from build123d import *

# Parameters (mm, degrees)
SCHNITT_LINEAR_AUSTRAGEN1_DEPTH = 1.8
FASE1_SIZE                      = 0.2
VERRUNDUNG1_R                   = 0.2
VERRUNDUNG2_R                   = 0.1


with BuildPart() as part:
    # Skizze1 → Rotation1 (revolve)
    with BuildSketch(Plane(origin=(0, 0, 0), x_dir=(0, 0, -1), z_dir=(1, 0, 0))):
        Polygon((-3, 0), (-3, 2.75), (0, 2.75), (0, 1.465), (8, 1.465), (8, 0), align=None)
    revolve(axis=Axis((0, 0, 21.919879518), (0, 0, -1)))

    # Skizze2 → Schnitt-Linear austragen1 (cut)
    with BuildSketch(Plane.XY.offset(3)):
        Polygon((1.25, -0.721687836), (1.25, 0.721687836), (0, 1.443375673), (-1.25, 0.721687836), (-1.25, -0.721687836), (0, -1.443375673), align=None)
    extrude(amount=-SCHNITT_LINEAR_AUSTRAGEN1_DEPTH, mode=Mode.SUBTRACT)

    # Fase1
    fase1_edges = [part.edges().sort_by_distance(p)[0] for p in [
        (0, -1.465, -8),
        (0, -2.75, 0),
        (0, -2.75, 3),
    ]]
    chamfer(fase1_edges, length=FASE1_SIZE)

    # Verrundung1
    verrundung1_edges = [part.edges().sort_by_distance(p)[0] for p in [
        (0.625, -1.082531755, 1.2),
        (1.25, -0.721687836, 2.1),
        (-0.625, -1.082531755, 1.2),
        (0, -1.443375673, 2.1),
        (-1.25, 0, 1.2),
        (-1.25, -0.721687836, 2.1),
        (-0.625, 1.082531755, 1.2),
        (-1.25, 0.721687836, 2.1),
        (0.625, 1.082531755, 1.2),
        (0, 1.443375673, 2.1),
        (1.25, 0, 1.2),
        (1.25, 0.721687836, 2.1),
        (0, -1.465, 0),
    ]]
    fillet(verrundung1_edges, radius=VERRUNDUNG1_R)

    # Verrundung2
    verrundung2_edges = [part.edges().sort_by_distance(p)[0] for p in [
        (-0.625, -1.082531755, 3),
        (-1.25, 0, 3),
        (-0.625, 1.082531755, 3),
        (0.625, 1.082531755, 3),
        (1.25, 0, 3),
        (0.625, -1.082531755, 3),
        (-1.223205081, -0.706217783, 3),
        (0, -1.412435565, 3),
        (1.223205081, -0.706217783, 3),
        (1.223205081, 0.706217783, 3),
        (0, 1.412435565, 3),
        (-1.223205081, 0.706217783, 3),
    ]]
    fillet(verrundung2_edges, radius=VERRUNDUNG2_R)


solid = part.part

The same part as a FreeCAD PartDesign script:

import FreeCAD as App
import Part
import Sketcher

V = App.Vector
Q = App.Units.Quantity


def edges_at(feature, points):
    """Names of the edges that pass closest to the given points."""
    edges = feature.Shape.Edges
    near = lambda p: min(range(len(edges)), key=lambda i: edges[i].distToShape(Part.Vertex(*p))[0])
    return sorted({f"Edge{near(p) + 1}" for p in points})

doc = App.newDocument("Part")
body = doc.addObject("PartDesign::Body", "Body")

sketch1 = body.newObject("Sketcher::SketchObject", "Sketch")
sketch1.AttachmentSupport = (doc.getObject("YZ_Plane"), [""])
sketch1.MapMode = "FlatFace"
sketch1.addGeometry(Part.LineSegment(V(2.8, 3, 0), V(0, 3, 0)), False)
sketch1.addGeometry(Part.LineSegment(V(0, 3, 0), V(0, -8, 0)), False)
sketch1.addGeometry(Part.LineSegment(V(0, -8, 0), V(1.5, -8, 0)), False)
sketch1.addGeometry(Part.LineSegment(V(1.5, -8, 0), V(1.5, 0, 0)), False)
sketch1.addGeometry(Part.LineSegment(V(1.5, 0, 0), V(2.8, 0, 0)), False)
sketch1.addGeometry(Part.LineSegment(V(2.8, 0, 0), V(2.8, 3, 0)), False)
sketch1.addConstraint(Sketcher.Constraint("Coincident", 0, 2, 1, 1))
sketch1.addConstraint(Sketcher.Constraint("Coincident", 1, 2, 2, 1))
sketch1.addConstraint(Sketcher.Constraint("Coincident", 2, 2, 3, 1))
sketch1.addConstraint(Sketcher.Constraint("Coincident", 3, 2, 4, 1))
sketch1.addConstraint(Sketcher.Constraint("Coincident", 4, 2, 5, 1))
sketch1.addConstraint(Sketcher.Constraint("Coincident", 5, 2, 0, 1))
sketch1.addConstraint(Sketcher.Constraint("Horizontal", 0))
sketch1.addConstraint(Sketcher.Constraint("Vertical", 1))
sketch1.addConstraint(Sketcher.Constraint("Horizontal", 2))
sketch1.addConstraint(Sketcher.Constraint("Vertical", 3))
sketch1.addConstraint(Sketcher.Constraint("Horizontal", 4))
sketch1.addConstraint(Sketcher.Constraint("Vertical", 5))
sketch1.addConstraint(Sketcher.Constraint("PointOnObject", 0, 2, -2))
sketch1.addConstraint(Sketcher.Constraint("PointOnObject", 3, 2, -1))
sketch1.addConstraint(Sketcher.Constraint("DistanceY", 1, 2, 1, 1, 11.0))
sketch1.addConstraint(Sketcher.Constraint("DistanceY", 3, 1, 3, 2, 8.0))
sketch1.addConstraint(Sketcher.Constraint("DistanceX", 0, 2, 0, 1, 2.75))
sketch1.addConstraint(Sketcher.Constraint("DistanceX", 2, 1, 2, 2, 1.465))
revolution = body.newObject("PartDesign::Revolution", "Revolution")
revolution.Profile = sketch1
revolution.ReferenceAxis = (sketch1, ["V_Axis"])
revolution.Angle = 360

sketch2 = body.newObject("Sketcher::SketchObject", "Sketch001")
sketch2.AttachmentSupport = (doc.getObject("XY_Plane"), [""])
sketch2.MapMode = "FlatFace"
sketch2.AttachmentOffset = App.Placement(V(0, 0, 3), App.Rotation())
sketch2.addGeometry(Part.LineSegment(V(1.2, -0.7, 0), V(1.2, 0.7, 0)), False)
sketch2.addGeometry(Part.LineSegment(V(1.2, 0.7, 0), V(0, 1.4, 0)), False)
sketch2.addGeometry(Part.LineSegment(V(0, 1.4, 0), V(-1.2, 0.7, 0)), False)
sketch2.addGeometry(Part.LineSegment(V(-1.2, 0.7, 0), V(-1.2, -0.7, 0)), False)
sketch2.addGeometry(Part.LineSegment(V(-1.2, -0.7, 0), V(0, -1.4, 0)), False)
sketch2.addGeometry(Part.LineSegment(V(0, -1.4, 0), V(1.2, -0.7, 0)), False)
sketch2.addConstraint(Sketcher.Constraint("Coincident", 0, 2, 1, 1))
sketch2.addConstraint(Sketcher.Constraint("Coincident", 1, 2, 2, 1))
sketch2.addConstraint(Sketcher.Constraint("Coincident", 2, 2, 3, 1))
sketch2.addConstraint(Sketcher.Constraint("Coincident", 3, 2, 4, 1))
sketch2.addConstraint(Sketcher.Constraint("Coincident", 4, 2, 5, 1))
sketch2.addConstraint(Sketcher.Constraint("Coincident", 5, 2, 0, 1))
sketch2.addConstraint(Sketcher.Constraint("Vertical", 0))
sketch2.addConstraint(Sketcher.Constraint("Vertical", 3))
sketch2.addConstraint(Sketcher.Constraint("Symmetric", 0, 2, 3, 2, -1, 1))
sketch2.addConstraint(Sketcher.Constraint("Symmetric", 1, 2, 4, 2, -1, 1))
sketch2.addConstraint(Sketcher.Constraint("PointOnObject", 1, 2, -2))
sketch2.addConstraint(Sketcher.Constraint("Parallel", 2, 5))
sketch2.addConstraint(Sketcher.Constraint("Horizontal", 0, 2, 2, 2))
sketch2.addConstraint(Sketcher.Constraint("Angle", 1, Q("150 deg")))
sketch2.addConstraint(Sketcher.Constraint("DistanceX", 2, 2, 0, 2, 2.5))
sketch2.addConstraint(Sketcher.Constraint("DistanceY", 0, 1, 0, 2, 1.443376))
pocket1 = body.newObject("PartDesign::Pocket", "Pocket")
pocket1.Profile = sketch2
pocket1.Length = 1.8
doc.recompute()

chamfer = body.newObject("PartDesign::Chamfer", "Chamfer")
chamfer.Base = (pocket1, edges_at(pocket1, [(0, -1.465, -8), (0, -2.75, 0), (0, -2.75, 3)]))
chamfer.Size = 0.2
doc.recompute()

fillet = body.newObject("PartDesign::Fillet", "Fillet")
fillet.Base = (chamfer, edges_at(chamfer, [
    (0.625, -1.083, 1.2),
    (1.25, -0.722, 2.1),
    (-0.625, -1.083, 1.2),
    (0, -1.443, 2.1),
    (-1.25, 0, 1.2),
    (-1.25, -0.722, 2.1),
    (-0.625, 1.083, 1.2),
    (-1.25, 0.722, 2.1),
    (0.625, 1.083, 1.2),
    (0, 1.443, 2.1),
    (1.25, 0, 1.2),
    (1.25, 0.722, 2.1),
    (0, -1.465, 0),
]))
fillet.Radius = 0.2
doc.recompute()

fillet2 = body.newObject("PartDesign::Fillet", "Fillet001")
fillet2.Base = (fillet, edges_at(fillet, [
    (-0.625, -1.083, 3),
    (-1.25, 0, 3),
    (-0.625, 1.083, 3),
    (0.625, 1.083, 3),
    (1.25, 0, 3),
    (0.625, -1.083, 3),
    (-1.223, -0.706, 3),
    (0, -1.412, 3),
    (1.223, -0.706, 3),
    (1.223, 0.706, 3),
    (0, 1.412, 3),
    (-1.223, 0.706, 3),
]))
fillet2.Radius = 0.1

doc.recompute()
